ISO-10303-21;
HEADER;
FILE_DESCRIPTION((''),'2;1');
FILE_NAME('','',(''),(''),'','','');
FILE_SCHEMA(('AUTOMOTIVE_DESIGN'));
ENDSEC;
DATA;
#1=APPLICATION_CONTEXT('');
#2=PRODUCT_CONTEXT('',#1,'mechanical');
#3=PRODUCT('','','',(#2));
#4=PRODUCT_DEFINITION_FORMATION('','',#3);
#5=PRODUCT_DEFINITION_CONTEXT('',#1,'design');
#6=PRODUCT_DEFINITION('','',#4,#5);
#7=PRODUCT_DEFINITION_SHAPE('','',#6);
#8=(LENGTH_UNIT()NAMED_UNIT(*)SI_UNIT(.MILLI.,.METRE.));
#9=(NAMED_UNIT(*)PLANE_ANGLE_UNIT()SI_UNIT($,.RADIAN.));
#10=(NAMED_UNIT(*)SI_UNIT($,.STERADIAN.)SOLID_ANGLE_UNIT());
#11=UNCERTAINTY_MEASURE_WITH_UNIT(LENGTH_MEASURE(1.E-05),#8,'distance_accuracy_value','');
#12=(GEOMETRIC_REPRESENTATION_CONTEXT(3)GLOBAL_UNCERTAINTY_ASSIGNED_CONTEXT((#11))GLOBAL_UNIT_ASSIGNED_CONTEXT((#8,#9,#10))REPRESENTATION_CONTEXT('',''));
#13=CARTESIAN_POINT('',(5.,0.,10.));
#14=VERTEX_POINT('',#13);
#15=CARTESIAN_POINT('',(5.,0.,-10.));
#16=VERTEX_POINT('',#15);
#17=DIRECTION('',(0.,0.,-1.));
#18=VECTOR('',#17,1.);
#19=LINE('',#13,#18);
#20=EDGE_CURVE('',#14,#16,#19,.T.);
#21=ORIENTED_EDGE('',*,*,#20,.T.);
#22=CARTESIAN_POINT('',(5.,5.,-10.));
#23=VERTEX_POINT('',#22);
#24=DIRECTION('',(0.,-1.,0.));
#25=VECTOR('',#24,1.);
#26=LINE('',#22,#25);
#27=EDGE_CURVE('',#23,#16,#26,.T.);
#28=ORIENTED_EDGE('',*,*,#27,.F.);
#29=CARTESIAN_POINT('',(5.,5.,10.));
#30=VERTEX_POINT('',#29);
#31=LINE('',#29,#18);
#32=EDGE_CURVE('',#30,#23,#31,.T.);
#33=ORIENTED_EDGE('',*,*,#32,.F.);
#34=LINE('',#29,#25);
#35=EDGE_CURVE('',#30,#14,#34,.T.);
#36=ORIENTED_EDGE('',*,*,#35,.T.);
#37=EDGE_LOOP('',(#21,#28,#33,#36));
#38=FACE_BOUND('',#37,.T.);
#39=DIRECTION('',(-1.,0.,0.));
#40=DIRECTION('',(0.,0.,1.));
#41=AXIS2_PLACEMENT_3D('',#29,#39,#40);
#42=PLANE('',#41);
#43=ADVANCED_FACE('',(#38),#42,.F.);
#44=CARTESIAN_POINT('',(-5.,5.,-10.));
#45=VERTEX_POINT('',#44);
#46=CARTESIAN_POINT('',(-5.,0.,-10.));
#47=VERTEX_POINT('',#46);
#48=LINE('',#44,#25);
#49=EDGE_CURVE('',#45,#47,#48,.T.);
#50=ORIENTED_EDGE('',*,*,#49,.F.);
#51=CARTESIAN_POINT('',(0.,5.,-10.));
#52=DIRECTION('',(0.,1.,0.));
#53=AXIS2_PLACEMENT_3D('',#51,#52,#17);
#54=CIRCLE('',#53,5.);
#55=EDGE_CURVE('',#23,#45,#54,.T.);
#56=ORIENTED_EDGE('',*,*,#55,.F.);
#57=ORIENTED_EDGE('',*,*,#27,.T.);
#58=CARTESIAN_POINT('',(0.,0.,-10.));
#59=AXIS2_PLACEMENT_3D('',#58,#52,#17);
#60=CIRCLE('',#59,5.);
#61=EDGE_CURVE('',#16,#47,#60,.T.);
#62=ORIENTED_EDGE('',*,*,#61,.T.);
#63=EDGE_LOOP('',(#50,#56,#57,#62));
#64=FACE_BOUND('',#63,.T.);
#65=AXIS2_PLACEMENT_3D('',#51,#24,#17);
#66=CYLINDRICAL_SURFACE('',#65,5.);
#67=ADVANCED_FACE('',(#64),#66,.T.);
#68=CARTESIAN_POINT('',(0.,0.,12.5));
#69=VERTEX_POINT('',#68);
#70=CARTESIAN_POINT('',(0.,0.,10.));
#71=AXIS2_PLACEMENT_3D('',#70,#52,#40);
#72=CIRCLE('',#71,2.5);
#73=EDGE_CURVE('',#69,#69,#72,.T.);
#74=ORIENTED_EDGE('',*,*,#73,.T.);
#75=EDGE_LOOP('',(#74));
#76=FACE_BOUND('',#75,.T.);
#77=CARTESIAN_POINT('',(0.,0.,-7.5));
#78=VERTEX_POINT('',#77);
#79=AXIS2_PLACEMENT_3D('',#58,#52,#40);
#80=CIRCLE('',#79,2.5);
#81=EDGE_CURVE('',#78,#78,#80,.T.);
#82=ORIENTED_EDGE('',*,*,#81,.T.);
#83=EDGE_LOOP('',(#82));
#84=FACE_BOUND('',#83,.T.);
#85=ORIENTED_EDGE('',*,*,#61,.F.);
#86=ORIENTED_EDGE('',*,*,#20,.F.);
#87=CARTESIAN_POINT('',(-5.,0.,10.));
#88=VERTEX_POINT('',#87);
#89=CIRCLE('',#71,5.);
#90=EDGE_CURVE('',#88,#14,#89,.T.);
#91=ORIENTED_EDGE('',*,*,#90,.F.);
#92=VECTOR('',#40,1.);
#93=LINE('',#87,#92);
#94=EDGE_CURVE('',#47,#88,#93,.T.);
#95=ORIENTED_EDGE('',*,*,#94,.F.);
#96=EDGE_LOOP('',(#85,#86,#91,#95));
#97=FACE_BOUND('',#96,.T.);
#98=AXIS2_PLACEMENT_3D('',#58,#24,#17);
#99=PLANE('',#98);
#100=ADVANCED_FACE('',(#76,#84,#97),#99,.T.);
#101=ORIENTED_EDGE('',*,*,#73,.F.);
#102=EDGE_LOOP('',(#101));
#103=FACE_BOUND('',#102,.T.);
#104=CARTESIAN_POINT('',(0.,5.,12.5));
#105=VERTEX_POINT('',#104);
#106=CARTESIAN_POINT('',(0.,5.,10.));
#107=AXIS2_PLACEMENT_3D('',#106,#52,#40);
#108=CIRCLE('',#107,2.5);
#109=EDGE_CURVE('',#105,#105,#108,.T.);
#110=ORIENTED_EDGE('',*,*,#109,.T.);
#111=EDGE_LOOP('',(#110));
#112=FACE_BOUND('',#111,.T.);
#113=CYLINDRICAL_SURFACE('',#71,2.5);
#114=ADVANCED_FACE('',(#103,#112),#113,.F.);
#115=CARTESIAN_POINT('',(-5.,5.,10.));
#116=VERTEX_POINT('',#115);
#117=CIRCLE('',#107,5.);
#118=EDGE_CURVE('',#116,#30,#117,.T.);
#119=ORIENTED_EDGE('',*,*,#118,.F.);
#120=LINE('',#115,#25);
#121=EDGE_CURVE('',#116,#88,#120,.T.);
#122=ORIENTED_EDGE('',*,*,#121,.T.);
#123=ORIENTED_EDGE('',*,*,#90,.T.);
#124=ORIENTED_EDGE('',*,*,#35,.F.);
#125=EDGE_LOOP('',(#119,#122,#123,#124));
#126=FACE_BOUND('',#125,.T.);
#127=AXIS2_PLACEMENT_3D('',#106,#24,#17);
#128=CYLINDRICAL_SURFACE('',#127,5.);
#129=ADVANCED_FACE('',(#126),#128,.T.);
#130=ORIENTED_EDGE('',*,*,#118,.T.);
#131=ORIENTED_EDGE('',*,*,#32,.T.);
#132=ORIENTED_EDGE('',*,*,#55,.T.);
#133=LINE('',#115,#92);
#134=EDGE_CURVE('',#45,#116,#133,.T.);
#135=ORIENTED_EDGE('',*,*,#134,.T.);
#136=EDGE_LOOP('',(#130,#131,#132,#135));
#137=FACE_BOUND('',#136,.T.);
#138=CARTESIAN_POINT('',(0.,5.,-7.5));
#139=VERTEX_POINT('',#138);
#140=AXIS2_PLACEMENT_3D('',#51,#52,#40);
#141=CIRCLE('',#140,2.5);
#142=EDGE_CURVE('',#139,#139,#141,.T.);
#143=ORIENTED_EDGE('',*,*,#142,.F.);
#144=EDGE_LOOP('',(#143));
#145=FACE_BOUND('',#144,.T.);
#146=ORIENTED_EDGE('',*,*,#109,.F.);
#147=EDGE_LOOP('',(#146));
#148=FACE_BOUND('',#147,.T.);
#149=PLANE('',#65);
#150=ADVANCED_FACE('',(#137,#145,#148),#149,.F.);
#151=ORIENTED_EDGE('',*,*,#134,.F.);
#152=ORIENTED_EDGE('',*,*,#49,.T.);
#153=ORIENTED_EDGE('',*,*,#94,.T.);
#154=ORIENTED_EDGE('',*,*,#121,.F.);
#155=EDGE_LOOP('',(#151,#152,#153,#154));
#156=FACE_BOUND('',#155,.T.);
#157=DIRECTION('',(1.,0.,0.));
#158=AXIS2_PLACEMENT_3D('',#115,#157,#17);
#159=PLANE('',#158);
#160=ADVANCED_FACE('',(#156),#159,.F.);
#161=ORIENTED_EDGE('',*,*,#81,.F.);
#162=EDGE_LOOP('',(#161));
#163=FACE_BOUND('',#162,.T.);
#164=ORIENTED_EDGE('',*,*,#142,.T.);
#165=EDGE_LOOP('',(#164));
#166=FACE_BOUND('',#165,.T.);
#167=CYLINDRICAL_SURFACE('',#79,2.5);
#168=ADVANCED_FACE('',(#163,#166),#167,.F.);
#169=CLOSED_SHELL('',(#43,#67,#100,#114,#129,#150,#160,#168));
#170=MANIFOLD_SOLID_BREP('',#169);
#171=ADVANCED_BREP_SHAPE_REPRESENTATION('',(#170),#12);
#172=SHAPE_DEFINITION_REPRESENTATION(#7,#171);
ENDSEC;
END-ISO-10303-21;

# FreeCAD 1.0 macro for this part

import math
import FreeCAD as App
import Part
import Sketcher

doc = App.newDocument("Part")
body = doc.addObject("PartDesign::Body", "Body")

sketch1 = body.newObject("Sketcher::SketchObject", "Sketch")
sketch1.AttachmentSupport = (doc.getObject("XZ_Plane"), [""])
sketch1.MapMode = "FlatFace"
sketch1.addGeometry([
    Part.LineSegment(App.Vector(-5, -10, 0), App.Vector(-5, 10, 0)),
    Part.ArcOfCircle(Part.Circle(App.Vector(0, 10, 0), App.Vector(0, 0, 1), 5), math.radians(0), math.radians(180)),
    Part.LineSegment(App.Vector(5, 10, 0), App.Vector(5, -10, 0)),
    Part.ArcOfCircle(Part.Circle(App.Vector(0, -10, 0), App.Vector(0, 0, 1), 5), math.radians(180), math.radians(360)),
], False)
sketch1.addConstraint([
    Sketcher.Constraint("Tangent", 0, 2, 1, 2),
    Sketcher.Constraint("Tangent", 1, 1, 2, 1),
    Sketcher.Constraint("Tangent", 2, 2, 3, 2),
    Sketcher.Constraint("Tangent", 3, 1, 0, 1),
    Sketcher.Constraint("Vertical", 0),
    Sketcher.Constraint("Vertical", 2),
    Sketcher.Constraint("Symmetric", 1, 3, 3, 3, -1, 1),
    Sketcher.Constraint("Radius", 1, 5.0),
    Sketcher.Constraint("DistanceY", 0, 1, 0, 2, 20.0),
])
pad1 = body.newObject("PartDesign::Pad", "Pad")
pad1.Profile = sketch1
pad1.Length = 5
pad1.Reversed = True

sketch2 = body.newObject("Sketcher::SketchObject", "Sketch001")
sketch2.AttachmentSupport = (doc.getObject("XZ_Plane"), [""])
sketch2.MapMode = "FlatFace"
sketch2.AttachmentOffset = App.Placement(App.Vector(0, 0, -5), App.Rotation())
sketch2.addGeometry([
    Part.Circle(App.Vector(0, -10, 0), App.Vector(0, 0, 1), 2.5),
    Part.Circle(App.Vector(0, 10, 0), App.Vector(0, 0, 1), 2.5),
], False)
sketch2.addConstraint([
    Sketcher.Constraint("Equal", 0, 1),
    Sketcher.Constraint("Symmetric", 0, 3, 1, 3, -1, 1),
    Sketcher.Constraint("PointOnObject", 0, 3, -2),
    Sketcher.Constraint("Diameter", 0, 5.0),
    Sketcher.Constraint("DistanceY", 0, 3, -1, 1, 10.0),
])
pocket1 = body.newObject("PartDesign::Pocket", "Pocket")
pocket1.Profile = sketch2
pocket1.Type = "ThroughAll"
pocket1.Reversed = True

doc.recompute()
